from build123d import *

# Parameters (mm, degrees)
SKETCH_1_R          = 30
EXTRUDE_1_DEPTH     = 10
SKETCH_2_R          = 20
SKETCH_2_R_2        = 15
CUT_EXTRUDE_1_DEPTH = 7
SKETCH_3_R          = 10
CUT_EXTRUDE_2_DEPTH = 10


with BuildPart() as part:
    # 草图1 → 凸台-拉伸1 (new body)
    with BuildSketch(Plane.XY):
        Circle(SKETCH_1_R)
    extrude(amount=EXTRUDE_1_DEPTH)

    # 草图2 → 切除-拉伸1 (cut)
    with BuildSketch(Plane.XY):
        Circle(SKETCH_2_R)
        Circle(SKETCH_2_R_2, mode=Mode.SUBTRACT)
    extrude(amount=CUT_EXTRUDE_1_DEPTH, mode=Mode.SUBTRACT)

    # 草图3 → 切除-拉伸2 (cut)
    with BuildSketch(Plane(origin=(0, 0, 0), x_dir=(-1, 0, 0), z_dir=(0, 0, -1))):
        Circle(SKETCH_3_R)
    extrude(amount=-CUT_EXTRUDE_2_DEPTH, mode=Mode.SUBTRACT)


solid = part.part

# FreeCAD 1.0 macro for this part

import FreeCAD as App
import Part
import Sketcher
from FreeCAD import Vector

doc = App.newDocument("Part")
body = doc.addObject("PartDesign::Body", "Body")

# Sketch on XY plane
sketch1 = body.newObject("Sketcher::SketchObject", "Sketch")
sketch1.AttachmentSupport = (doc.getObject("XY_Plane"), [""])
sketch1.MapMode = "FlatFace"
sketch1.addGeometry(Part.Circle(Vector(0, 0, 0), Vector(0, 0, 1), 30), False)
sketch1.addConstraint([
    Sketcher.Constraint("Coincident", 0, 3, -1, 1),
    Sketcher.Constraint("Diameter", 0, 60.0),
])
pad1 = body.newObject("PartDesign::Pad", "Pad")
pad1.Profile = sketch1
pad1.Length = 10

# Sketch on XY plane
sketch2 = body.newObject("Sketcher::SketchObject", "Sketch001")
sketch2.AttachmentSupport = (doc.getObject("XY_Plane"), [""])
sketch2.MapMode = "FlatFace"
sketch2.addGeometry([
    Part.Circle(Vector(0, 0, 0), Vector(0, 0, 1), 20),
    Part.Circle(Vector(0, 0, 0), Vector(0, 0, 1), 15),
], False)
sketch2.addConstraint([
    Sketcher.Constraint("Coincident", 0, 3, -1, 1),
    Sketcher.Constraint("Coincident", 1, 3, -1, 1),
    Sketcher.Constraint("Diameter", 0, 40.0),
    Sketcher.Constraint("Diameter", 1, 30.0),
])
pocket1 = body.newObject("PartDesign::Pocket", "Pocket")
pocket1.Profile = sketch2
pocket1.Length = 7
pocket1.Reversed = True

# Sketch on XY plane
sketch3 = body.newObject("Sketcher::SketchObject", "Sketch002")
sketch3.AttachmentSupport = (doc.getObject("XY_Plane"), [""])
sketch3.MapMode = "FlatFace"
sketch3.addGeometry(Part.Circle(Vector(0, 0, 0), Vector(0, 0, 1), 10), False)
sketch3.addConstraint([
    Sketcher.Constraint("Coincident", 0, 3, -1, 1),
    Sketcher.Constraint("Diameter", 0, 20.0),
])
pocket2 = body.newObject("PartDesign::Pocket", "Pocket001")
pocket2.Profile = sketch3
pocket2.Length = 10
pocket2.Reversed = True

doc.recompute()
